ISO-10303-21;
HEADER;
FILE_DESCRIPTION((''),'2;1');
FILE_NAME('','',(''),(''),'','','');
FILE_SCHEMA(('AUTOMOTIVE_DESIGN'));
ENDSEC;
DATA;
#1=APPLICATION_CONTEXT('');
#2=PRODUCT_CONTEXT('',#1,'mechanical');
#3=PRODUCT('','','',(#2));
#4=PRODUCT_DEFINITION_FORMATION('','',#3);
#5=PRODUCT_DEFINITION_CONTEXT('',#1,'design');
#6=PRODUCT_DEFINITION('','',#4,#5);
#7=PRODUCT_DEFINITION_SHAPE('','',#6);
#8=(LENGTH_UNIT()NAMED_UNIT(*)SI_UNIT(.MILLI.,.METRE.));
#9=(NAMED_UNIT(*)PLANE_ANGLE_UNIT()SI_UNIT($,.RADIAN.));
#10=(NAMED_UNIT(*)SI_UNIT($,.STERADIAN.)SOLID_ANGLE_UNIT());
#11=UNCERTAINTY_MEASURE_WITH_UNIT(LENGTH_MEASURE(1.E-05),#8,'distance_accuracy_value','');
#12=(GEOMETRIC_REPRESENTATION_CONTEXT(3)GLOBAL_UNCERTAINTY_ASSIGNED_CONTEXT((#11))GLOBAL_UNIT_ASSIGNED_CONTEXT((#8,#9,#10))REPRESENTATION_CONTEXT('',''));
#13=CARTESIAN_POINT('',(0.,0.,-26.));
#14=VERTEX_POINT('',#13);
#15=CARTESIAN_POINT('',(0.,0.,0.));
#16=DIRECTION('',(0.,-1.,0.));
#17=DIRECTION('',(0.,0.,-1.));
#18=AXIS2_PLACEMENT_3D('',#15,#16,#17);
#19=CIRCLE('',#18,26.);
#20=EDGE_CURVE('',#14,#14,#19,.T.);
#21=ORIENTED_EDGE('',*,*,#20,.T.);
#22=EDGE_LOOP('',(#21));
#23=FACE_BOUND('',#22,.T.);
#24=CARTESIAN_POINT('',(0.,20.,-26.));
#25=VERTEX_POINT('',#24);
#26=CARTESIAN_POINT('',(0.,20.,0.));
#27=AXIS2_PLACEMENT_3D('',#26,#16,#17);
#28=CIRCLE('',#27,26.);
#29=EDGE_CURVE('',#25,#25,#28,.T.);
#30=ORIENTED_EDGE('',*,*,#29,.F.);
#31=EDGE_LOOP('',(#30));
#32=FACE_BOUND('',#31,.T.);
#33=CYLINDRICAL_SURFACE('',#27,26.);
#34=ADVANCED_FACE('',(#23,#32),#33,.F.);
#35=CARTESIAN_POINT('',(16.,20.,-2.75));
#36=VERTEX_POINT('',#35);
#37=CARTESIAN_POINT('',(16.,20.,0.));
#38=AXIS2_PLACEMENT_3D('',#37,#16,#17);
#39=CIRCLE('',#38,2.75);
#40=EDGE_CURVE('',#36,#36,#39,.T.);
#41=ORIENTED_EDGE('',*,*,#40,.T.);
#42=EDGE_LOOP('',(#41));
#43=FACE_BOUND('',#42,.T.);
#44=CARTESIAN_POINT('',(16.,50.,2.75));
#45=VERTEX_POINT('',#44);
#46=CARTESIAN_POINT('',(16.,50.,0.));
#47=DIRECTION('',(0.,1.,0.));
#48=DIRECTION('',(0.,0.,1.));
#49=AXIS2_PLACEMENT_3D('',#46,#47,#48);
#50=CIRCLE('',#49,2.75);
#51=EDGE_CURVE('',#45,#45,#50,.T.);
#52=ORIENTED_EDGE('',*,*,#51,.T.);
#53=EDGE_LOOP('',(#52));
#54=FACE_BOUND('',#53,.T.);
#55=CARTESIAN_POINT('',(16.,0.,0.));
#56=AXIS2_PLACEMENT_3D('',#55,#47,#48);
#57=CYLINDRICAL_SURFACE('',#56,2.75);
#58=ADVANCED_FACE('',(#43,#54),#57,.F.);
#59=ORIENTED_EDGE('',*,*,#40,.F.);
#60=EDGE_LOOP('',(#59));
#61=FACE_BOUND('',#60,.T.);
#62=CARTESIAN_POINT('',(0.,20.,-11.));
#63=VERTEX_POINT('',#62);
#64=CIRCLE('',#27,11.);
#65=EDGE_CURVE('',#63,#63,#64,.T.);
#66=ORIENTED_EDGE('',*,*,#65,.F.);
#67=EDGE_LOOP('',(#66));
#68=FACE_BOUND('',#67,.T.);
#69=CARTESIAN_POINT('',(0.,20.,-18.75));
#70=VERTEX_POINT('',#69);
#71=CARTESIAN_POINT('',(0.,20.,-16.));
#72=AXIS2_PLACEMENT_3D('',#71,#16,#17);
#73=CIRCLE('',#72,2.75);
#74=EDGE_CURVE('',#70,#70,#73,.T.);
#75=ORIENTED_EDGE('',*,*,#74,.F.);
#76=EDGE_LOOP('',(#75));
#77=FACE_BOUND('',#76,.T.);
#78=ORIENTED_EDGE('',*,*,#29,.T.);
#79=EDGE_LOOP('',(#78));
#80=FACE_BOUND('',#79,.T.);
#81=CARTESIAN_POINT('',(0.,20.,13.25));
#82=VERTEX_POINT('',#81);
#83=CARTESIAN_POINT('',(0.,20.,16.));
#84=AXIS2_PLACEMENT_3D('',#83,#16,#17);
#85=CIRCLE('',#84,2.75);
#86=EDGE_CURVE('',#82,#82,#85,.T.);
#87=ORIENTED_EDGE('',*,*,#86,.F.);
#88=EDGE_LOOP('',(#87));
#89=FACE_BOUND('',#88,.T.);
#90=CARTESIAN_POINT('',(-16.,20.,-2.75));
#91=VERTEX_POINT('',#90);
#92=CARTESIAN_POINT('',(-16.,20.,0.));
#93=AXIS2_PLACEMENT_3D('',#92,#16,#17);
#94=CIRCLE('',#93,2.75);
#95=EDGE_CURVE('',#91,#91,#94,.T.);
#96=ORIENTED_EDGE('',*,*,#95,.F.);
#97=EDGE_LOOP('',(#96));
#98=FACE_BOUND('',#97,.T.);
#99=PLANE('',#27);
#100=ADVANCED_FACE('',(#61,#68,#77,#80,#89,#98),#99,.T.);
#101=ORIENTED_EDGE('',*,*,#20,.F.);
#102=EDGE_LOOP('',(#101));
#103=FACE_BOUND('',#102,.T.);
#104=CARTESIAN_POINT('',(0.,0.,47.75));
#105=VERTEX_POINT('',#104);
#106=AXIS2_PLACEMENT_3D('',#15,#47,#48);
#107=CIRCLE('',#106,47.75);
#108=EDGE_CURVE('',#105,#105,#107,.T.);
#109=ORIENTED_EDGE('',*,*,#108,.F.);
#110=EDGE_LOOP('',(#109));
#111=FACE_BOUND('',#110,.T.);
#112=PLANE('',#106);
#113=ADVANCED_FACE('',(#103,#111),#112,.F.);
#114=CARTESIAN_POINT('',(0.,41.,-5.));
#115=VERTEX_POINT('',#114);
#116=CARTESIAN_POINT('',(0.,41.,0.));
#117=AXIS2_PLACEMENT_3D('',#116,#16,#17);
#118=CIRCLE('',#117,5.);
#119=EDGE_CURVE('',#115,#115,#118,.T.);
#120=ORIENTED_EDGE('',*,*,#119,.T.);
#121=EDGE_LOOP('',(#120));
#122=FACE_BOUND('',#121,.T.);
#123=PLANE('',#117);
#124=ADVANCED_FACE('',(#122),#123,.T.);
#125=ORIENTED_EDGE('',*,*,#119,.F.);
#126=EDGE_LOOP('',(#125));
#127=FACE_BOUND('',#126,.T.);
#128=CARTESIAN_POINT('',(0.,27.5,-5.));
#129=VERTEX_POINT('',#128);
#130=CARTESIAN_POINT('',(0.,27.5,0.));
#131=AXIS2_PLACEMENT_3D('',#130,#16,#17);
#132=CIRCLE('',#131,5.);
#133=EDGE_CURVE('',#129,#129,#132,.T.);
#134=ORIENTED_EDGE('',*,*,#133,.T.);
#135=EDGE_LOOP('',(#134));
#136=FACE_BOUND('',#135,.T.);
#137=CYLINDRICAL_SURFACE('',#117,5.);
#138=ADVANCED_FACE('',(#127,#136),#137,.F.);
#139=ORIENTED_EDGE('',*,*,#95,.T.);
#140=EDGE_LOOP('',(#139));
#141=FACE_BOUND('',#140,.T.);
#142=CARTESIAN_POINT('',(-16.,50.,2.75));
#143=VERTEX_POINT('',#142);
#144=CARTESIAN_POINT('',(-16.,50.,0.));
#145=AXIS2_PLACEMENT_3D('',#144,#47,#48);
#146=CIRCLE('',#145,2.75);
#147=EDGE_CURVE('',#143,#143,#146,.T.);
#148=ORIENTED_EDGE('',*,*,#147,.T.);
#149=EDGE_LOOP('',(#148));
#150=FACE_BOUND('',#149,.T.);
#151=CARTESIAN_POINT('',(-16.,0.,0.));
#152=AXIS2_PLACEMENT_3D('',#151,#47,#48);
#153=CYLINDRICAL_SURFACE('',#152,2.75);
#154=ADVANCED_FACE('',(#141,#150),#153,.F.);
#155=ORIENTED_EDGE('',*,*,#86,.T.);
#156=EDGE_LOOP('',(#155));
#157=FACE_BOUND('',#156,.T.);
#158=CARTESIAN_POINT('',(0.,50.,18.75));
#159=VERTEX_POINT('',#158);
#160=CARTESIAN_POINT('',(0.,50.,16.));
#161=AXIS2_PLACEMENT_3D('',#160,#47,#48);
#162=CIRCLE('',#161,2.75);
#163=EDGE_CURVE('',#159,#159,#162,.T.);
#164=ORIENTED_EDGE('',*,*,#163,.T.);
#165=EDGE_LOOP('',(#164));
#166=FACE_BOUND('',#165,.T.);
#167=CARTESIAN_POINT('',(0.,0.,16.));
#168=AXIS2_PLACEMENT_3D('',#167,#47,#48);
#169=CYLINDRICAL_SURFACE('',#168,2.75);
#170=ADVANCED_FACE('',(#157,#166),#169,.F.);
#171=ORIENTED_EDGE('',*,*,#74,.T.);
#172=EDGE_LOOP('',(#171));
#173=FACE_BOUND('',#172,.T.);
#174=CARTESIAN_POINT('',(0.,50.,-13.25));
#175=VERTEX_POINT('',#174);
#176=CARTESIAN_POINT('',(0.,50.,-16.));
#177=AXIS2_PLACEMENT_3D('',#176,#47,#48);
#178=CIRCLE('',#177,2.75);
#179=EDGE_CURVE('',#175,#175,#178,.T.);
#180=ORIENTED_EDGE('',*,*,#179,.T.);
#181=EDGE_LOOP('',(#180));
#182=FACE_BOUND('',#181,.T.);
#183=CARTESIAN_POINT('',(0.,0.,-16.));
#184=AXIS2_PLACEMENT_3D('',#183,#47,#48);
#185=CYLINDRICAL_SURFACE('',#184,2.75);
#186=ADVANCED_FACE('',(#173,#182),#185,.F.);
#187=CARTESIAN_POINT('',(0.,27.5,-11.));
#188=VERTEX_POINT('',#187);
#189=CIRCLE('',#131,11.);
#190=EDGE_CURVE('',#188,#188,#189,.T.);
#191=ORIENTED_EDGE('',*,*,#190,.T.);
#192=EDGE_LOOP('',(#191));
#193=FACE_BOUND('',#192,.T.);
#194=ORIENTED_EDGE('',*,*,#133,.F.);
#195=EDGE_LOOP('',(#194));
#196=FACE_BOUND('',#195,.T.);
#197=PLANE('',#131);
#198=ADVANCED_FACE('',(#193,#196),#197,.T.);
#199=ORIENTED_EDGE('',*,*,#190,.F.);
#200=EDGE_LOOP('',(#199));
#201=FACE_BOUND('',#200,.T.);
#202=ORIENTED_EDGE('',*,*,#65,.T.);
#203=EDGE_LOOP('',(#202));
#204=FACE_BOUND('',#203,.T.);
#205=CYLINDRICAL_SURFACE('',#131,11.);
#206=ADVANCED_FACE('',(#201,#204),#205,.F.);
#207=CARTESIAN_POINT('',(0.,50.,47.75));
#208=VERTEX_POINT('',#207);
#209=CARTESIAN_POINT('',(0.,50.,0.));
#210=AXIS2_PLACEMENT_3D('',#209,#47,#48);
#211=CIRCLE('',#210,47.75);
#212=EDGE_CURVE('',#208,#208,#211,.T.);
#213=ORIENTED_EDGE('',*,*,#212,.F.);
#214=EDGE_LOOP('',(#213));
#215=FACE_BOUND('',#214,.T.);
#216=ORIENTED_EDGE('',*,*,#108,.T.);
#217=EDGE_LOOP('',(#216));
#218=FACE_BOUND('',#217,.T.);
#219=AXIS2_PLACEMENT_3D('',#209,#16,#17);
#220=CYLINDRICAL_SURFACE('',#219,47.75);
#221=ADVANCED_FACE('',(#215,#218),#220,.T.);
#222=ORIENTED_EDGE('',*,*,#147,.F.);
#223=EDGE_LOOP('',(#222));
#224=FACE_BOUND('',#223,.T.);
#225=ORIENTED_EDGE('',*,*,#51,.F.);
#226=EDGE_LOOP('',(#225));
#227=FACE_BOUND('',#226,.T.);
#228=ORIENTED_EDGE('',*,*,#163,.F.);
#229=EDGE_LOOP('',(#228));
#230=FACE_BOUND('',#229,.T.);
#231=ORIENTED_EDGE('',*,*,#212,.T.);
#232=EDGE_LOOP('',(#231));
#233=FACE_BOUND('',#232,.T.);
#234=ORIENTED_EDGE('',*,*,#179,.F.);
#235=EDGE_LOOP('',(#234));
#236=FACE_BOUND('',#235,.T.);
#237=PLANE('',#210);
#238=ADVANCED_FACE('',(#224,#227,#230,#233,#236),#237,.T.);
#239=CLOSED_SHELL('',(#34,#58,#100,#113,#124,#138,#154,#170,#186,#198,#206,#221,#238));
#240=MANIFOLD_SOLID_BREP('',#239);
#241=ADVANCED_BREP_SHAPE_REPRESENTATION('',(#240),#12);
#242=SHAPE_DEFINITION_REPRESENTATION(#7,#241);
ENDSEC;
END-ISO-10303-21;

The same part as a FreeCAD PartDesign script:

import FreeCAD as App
import Part
import Sketcher

doc = App.newDocument("Part")
body = doc.addObject("PartDesign::Body", "Body")

# Sketch on XZ plane
sketch1 = doc.addObject("Sketcher::SketchObject", "Sketch")
body.addObject(sketch1)
sketch1.AttachmentSupport = (doc.XZ_Plane, [""])
sketch1.MapMode = "FlatFace"
sketch1.addGeometry(Part.Circle(App.Vector(0, 0, 0), App.Vector(0, 0, 1), 48), False)
sketch1.addConstraint([
    Sketcher.Constraint("Coincident", 0, 3, -1, 1),
    Sketcher.Constraint("Diameter", 0, 95.5),
])
pad1 = doc.addObject("PartDesign::Pad", "Pad")
body.addObject(pad1)
pad1.Profile = sketch1
pad1.Length = 50
pad1.Reversed = True

# Sketch on XZ plane
sketch2 = doc.addObject("Sketcher::SketchObject", "Sketch001")
body.addObject(sketch2)
sketch2.AttachmentSupport = (doc.XZ_Plane, [""])
sketch2.MapMode = "FlatFace"
sketch2.addGeometry(Part.Circle(App.Vector(0, 0, 0), App.Vector(0, 0, 1), 26), False)
sketch2.addConstraint([
    Sketcher.Constraint("Coincident", 0, 3, -1, 1),
    Sketcher.Constraint("Diameter", 0, 52.0),
])
pocket1 = doc.addObject("PartDesign::Pocket", "Pocket")
body.addObject(pocket1)
pocket1.Profile = sketch2
pocket1.Length = 20

# Sketch on XZ plane
sketch3 = doc.addObject("Sketcher::SketchObject", "Sketch002")
body.addObject(sketch3)
sketch3.AttachmentSupport = (doc.XZ_Plane, [""])
sketch3.MapMode = "FlatFace"
sketch3.AttachmentOffset = App.Placement(App.Vector(0, 0, -20), App.Rotation())
sketch3.addGeometry(Part.Circle(App.Vector(0, 0, 0), App.Vector(0, 0, 1), 11), False)
sketch3.addConstraint([
    Sketcher.Constraint("Coincident", 0, 3, -1, 1),
    Sketcher.Constraint("Diameter", 0, 22.0),
])
pocket2 = doc.addObject("PartDesign::Pocket", "Pocket001")
body.addObject(pocket2)
pocket2.Profile = sketch3
pocket2.Length = 7.5

# Sketch on XZ plane
sketch4 = doc.addObject("Sketcher::SketchObject", "Sketch003")
body.addObject(sketch4)
sketch4.AttachmentSupport = (doc.XZ_Plane, [""])
sketch4.MapMode = "FlatFace"
sketch4.AttachmentOffset = App.Placement(App.Vector(0, 0, -27.5), App.Rotation())
sketch4.addGeometry(Part.Circle(App.Vector(0, 0, 0), App.Vector(0, 0, 1), 5), False)
sketch4.addConstraint([
    Sketcher.Constraint("Coincident", 0, 3, -1, 1),
    Sketcher.Constraint("Diameter", 0, 10.0),
])
pocket3 = doc.addObject("PartDesign::Pocket", "Pocket002")
body.addObject(pocket3)
pocket3.Profile = sketch4
pocket3.Length = 13.5

# Sketch on XZ plane
sketch5 = doc.addObject("Sketcher::SketchObject", "Sketch004")
body.addObject(sketch5)
sketch5.AttachmentSupport = (doc.XZ_Plane, [""])
sketch5.MapMode = "FlatFace"
sketch5.AttachmentOffset = App.Placement(App.Vector(0, 0, -50), App.Rotation())
sketch5.addGeometry([
    Part.Circle(App.Vector(-16, 0, 0), App.Vector(0, 0, 1), 2.8),
    Part.Circle(App.Vector(0, -16, 0), App.Vector(0, 0, 1), 2.8),
    Part.Circle(App.Vector(16, 0, 0), App.Vector(0, 0, 1), 2.8),
    Part.Circle(App.Vector(0, 16, 0), App.Vector(0, 0, 1), 2.8),
], False)
sketch5.addConstraint([
    Sketcher.Constraint("Equal", 0, 1),
    Sketcher.Constraint("Equal", 1, 2),
    Sketcher.Constraint("Equal", 2, 3),
    Sketcher.Constraint("Symmetric", 0, 3, 2, 3, -1, 1),
    Sketcher.Constraint("Symmetric", 1, 3, 3, 3, -1, 1),
    Sketcher.Constraint("PointOnObject", 0, 3, -1),
    Sketcher.Constraint("PointOnObject", 1, 3, -2),
    Sketcher.Constraint("Diameter", 0, 5.5),
    Sketcher.Constraint("DistanceX", 0, 3, -1, 1, 16.0),
    Sketcher.Constraint("DistanceY", 1, 3, -1, 1, 16.0),
])
pocket4 = doc.addObject("PartDesign::Pocket", "Pocket003")
body.addObject(pocket4)
pocket4.Profile = sketch5
pocket4.Type = "ThroughAll"
pocket4.Reversed = True

doc.recompute()
